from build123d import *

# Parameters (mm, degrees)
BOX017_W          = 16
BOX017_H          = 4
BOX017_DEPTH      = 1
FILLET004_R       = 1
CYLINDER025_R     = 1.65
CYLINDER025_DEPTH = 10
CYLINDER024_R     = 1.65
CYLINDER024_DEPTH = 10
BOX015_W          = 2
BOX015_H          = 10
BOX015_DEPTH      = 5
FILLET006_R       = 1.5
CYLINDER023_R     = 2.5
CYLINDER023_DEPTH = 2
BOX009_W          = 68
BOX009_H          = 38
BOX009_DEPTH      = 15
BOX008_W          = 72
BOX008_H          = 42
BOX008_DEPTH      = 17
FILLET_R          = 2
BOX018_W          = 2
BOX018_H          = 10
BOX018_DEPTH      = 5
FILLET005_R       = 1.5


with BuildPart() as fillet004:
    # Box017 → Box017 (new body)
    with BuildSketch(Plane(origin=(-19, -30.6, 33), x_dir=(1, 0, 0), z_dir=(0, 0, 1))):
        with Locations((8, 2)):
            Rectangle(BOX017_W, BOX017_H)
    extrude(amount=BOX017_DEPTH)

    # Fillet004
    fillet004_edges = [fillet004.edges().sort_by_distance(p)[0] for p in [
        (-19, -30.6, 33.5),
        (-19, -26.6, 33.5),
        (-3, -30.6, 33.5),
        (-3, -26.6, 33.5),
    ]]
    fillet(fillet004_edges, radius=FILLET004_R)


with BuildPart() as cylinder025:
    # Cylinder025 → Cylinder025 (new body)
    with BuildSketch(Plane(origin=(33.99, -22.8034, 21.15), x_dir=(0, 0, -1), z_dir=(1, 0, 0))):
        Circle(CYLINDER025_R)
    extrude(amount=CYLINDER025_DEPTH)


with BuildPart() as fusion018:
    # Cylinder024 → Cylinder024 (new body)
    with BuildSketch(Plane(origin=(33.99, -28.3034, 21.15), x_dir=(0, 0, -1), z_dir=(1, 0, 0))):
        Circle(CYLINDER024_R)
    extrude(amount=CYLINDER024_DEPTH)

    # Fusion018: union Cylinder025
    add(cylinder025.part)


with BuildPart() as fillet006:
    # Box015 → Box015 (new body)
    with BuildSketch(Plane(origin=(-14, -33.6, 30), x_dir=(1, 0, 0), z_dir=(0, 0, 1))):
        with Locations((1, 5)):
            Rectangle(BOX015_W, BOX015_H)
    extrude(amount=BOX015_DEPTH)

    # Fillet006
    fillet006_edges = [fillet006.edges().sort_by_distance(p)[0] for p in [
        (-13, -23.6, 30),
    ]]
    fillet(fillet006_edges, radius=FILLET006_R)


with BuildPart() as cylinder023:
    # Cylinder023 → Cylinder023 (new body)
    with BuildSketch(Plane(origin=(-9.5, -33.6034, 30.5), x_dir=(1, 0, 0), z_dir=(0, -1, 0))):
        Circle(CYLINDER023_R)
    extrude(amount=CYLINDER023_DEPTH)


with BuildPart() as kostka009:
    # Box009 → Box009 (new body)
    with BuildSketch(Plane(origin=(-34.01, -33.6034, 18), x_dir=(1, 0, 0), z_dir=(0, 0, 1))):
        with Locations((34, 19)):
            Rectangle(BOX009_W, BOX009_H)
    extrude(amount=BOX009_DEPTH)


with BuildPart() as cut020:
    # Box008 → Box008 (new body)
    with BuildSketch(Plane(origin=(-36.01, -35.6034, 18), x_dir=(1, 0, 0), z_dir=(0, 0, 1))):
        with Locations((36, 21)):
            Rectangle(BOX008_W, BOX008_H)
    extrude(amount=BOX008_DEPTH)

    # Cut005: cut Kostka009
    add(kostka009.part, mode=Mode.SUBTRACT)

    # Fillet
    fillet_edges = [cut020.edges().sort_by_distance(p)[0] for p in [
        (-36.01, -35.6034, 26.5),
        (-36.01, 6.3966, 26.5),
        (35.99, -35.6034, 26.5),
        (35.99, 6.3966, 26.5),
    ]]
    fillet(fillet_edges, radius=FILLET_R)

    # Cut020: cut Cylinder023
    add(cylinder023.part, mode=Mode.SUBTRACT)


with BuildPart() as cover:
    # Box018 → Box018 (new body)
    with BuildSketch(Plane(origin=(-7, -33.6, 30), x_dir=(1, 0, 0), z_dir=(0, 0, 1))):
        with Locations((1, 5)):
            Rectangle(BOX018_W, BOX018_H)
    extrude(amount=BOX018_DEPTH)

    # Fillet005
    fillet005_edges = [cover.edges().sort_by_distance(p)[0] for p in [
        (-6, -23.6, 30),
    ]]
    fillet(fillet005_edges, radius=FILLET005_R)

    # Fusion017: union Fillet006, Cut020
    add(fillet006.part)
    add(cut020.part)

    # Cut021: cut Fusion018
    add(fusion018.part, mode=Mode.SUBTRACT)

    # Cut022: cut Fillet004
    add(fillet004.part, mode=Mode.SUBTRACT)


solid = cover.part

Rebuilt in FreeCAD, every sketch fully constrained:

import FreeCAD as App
import Part
import Sketcher


def edges_at(feature, points):
    """Names of the edges that pass closest to the given points."""
    edges = feature.Shape.Edges
    near = lambda p: min(range(len(edges)), key=lambda i: edges[i].distToShape(Part.Vertex(*p))[0])
    return sorted({f"Edge{near(p) + 1}" for p in points})

doc = App.newDocument("Part")
body = doc.addObject("PartDesign::Body", "Body")

# Sketch on XY plane
sketch1 = body.newObject("Sketcher::SketchObject", "Sketch")
sketch1.AttachmentSupport = (doc.getObject("XY_Plane"), [""])
sketch1.MapMode = "FlatFace"
sketch1.AttachmentOffset = App.Placement(App.Vector(0, 0, 33), App.Rotation())
sketch1.addGeometry(Part.LineSegment(App.Vector(-19, -26.6, 0), App.Vector(-19, -30.6, 0)), False)
sketch1.addGeometry(Part.LineSegment(App.Vector(-19, -30.6, 0), App.Vector(-3, -30.6, 0)), False)
sketch1.addGeometry(Part.LineSegment(App.Vector(-3, -30.6, 0), App.Vector(-3, -26.6, 0)), False)
sketch1.addGeometry(Part.LineSegment(App.Vector(-3, -26.6, 0), App.Vector(-19, -26.6, 0)), False)
sketch1.addConstraint(Sketcher.Constraint("Coincident", 0, 2, 1, 1))
sketch1.addConstraint(Sketcher.Constraint("Coincident", 1, 2, 2, 1))
sketch1.addConstraint(Sketcher.Constraint("Coincident", 2, 2, 3, 1))
sketch1.addConstraint(Sketcher.Constraint("Coincident", 3, 2, 0, 1))
sketch1.addConstraint(Sketcher.Constraint("Vertical", 0))
sketch1.addConstraint(Sketcher.Constraint("Horizontal", 1))
sketch1.addConstraint(Sketcher.Constraint("Vertical", 2))
sketch1.addConstraint(Sketcher.Constraint("Horizontal", 3))
sketch1.addConstraint(Sketcher.Constraint("DistanceX", 1, 1, 1, 2, 16.0))
sketch1.addConstraint(Sketcher.Constraint("DistanceY", 0, 2, 0, 1, 4.0))
sketch1.addConstraint(Sketcher.Constraint("DistanceX", 0, 2, -1, 1, 19.0))
sketch1.addConstraint(Sketcher.Constraint("DistanceY", 0, 2, -1, 1, 30.6))
pad1 = body.newObject("PartDesign::Pad", "Pad")
pad1.Profile = sketch1
pad1.Length = 1
doc.recompute()

fillet = body.newObject("PartDesign::Fillet", "Fillet")
fillet.Base = (pad1, edges_at(pad1, [
    (-19, -30.6, 33.5),
    (-19, -26.6, 33.5),
    (-3, -30.6, 33.5),
    (-3, -26.6, 33.5),
]))
fillet.Radius = 1
body2 = doc.addObject("PartDesign::Body", "Body001")

# Sketch on YZ plane
sketch2 = body2.newObject("Sketcher::SketchObject", "Sketch001")
sketch2.AttachmentSupport = (doc.getObject("YZ_Plane001"), [""])
sketch2.MapMode = "FlatFace"
sketch2.AttachmentOffset = App.Placement(App.Vector(0, 0, 33.99), App.Rotation())
sketch2.addGeometry(Part.Circle(App.Vector(-22.8, 21.1, 0), App.Vector(0, 0, 1), 1.6), False)
sketch2.addConstraint(Sketcher.Constraint("Diameter", 0, 3.3))
sketch2.addConstraint(Sketcher.Constraint("DistanceY", -1, 1, 0, 3, 21.15))
sketch2.addConstraint(Sketcher.Constraint("DistanceX", 0, 3, -1, 1, 22.8034))
pad2 = body2.newObject("PartDesign::Pad", "Pad001")
pad2.Profile = sketch2
pad2.Length = 10
body3 = doc.addObject("PartDesign::Body", "Body002")
body3.AllowCompound = True

# Sketch on YZ plane
sketch3 = body3.newObject("Sketcher::SketchObject", "Sketch002")
sketch3.AttachmentSupport = (doc.getObject("YZ_Plane002"), [""])
sketch3.MapMode = "FlatFace"
sketch3.AttachmentOffset = App.Placement(App.Vector(0, 0, 33.99), App.Rotation())
sketch3.addGeometry(Part.Circle(App.Vector(-28.3, 21.1, 0), App.Vector(0, 0, 1), 1.6), False)
sketch3.addConstraint(Sketcher.Constraint("Diameter", 0, 3.3))
sketch3.addConstraint(Sketcher.Constraint("DistanceY", -1, 1, 0, 3, 21.15))
sketch3.addConstraint(Sketcher.Constraint("DistanceX", 0, 3, -1, 1, 28.3034))
pad3 = body3.newObject("PartDesign::Pad", "Pad002")
pad3.Profile = sketch3
pad3.Length = 10
doc.recompute()

boolean = body3.newObject("PartDesign::Boolean", "Boolean")
boolean.Type = "Fuse"
boolean.addObjects([body2])
body4 = doc.addObject("PartDesign::Body", "Body003")

# Sketch on XY plane
sketch4 = body4.newObject("Sketcher::SketchObject", "Sketch003")
sketch4.AttachmentSupport = (doc.getObject("XY_Plane003"), [""])
sketch4.MapMode = "FlatFace"
sketch4.AttachmentOffset = App.Placement(App.Vector(0, 0, 30), App.Rotation())
sketch4.addGeometry(Part.LineSegment(App.Vector(-14, -23.6, 0), App.Vector(-14, -33.6, 0)), False)
sketch4.addGeometry(Part.LineSegment(App.Vector(-14, -33.6, 0), App.Vector(-12, -33.6, 0)), False)
sketch4.addGeometry(Part.LineSegment(App.Vector(-12, -33.6, 0), App.Vector(-12, -23.6, 0)), False)
sketch4.addGeometry(Part.LineSegment(App.Vector(-12, -23.6, 0), App.Vector(-14, -23.6, 0)), False)
sketch4.addConstraint(Sketcher.Constraint("Coincident", 0, 2, 1, 1))
sketch4.addConstraint(Sketcher.Constraint("Coincident", 1, 2, 2, 1))
sketch4.addConstraint(Sketcher.Constraint("Coincident", 2, 2, 3, 1))
sketch4.addConstraint(Sketcher.Constraint("Coincident", 3, 2, 0, 1))
sketch4.addConstraint(Sketcher.Constraint("Vertical", 0))
sketch4.addConstraint(Sketcher.Constraint("Horizontal", 1))
sketch4.addConstraint(Sketcher.Constraint("Vertical", 2))
sketch4.addConstraint(Sketcher.Constraint("Horizontal", 3))
sketch4.addConstraint(Sketcher.Constraint("DistanceX", 1, 1, 1, 2, 2.0))
sketch4.addConstraint(Sketcher.Constraint("DistanceY", 0, 2, 0, 1, 10.0))
sketch4.addConstraint(Sketcher.Constraint("DistanceX", 0, 2, -1, 1, 14.0))
sketch4.addConstraint(Sketcher.Constraint("DistanceY", 0, 2, -1, 1, 33.6))
pad4 = body4.newObject("PartDesign::Pad", "Pad003")
pad4.Profile = sketch4
pad4.Length = 5
doc.recompute()

fillet2 = body4.newObject("PartDesign::Fillet", "Fillet001")
fillet2.Base = (pad4, edges_at(pad4, [(-13, -23.6, 30)]))
fillet2.Radius = 1.5
body5 = doc.addObject("PartDesign::Body", "Body004")

# Sketch on XZ plane
sketch5 = body5.newObject("Sketcher::SketchObject", "Sketch004")
sketch5.AttachmentSupport = (doc.getObject("XZ_Plane004"), [""])
sketch5.MapMode = "FlatFace"
sketch5.AttachmentOffset = App.Placement(App.Vector(0, 0, 33.6034), App.Rotation())
sketch5.addGeometry(Part.Circle(App.Vector(-9.5, 30.5, 0), App.Vector(0, 0, 1), 2.5), False)
sketch5.addConstraint(Sketcher.Constraint("Diameter", 0, 5.0))
sketch5.addConstraint(Sketcher.Constraint("DistanceX", 0, 3, -1, 1, 9.5))
sketch5.addConstraint(Sketcher.Constraint("DistanceY", -1, 1, 0, 3, 30.5))
pad5 = body5.newObject("PartDesign::Pad", "Pad004")
pad5.Profile = sketch5
pad5.Length = 2
body6 = doc.addObject("PartDesign::Body", "Body005")

# Sketch on XY plane
sketch6 = body6.newObject("Sketcher::SketchObject", "Sketch005")
sketch6.AttachmentSupport = (doc.getObject("XY_Plane005"), [""])
sketch6.MapMode = "FlatFace"
sketch6.AttachmentOffset = App.Placement(App.Vector(0, 0, 18), App.Rotation())
sketch6.addGeometry(Part.LineSegment(App.Vector(-34, 4, 0), App.Vector(-34, -34, 0)), False)
sketch6.addGeometry(Part.LineSegment(App.Vector(-34, -34, 0), App.Vector(34, -34, 0)), False)
sketch6.addGeometry(Part.LineSegment(App.Vector(34, -34, 0), App.Vector(34, 4, 0)), False)
sketch6.addGeometry(Part.LineSegment(App.Vector(34, 4, 0), App.Vector(-34, 4, 0)), False)
sketch6.addConstraint(Sketcher.Constraint("Coincident", 0, 2, 1, 1))
sketch6.addConstraint(Sketcher.Constraint("Coincident", 1, 2, 2, 1))
sketch6.addConstraint(Sketcher.Constraint("Coincident", 2, 2, 3, 1))
sketch6.addConstraint(Sketcher.Constraint("Coincident", 3, 2, 0, 1))
sketch6.addConstraint(Sketcher.Constraint("Vertical", 0))
sketch6.addConstraint(Sketcher.Constraint("Horizontal", 1))
sketch6.addConstraint(Sketcher.Constraint("Vertical", 2))
sketch6.addConstraint(Sketcher.Constraint("Horizontal", 3))
sketch6.addConstraint(Sketcher.Constraint("DistanceX", 1, 1, 1, 2, 68.0))
sketch6.addConstraint(Sketcher.Constraint("DistanceY", 0, 2, 0, 1, 38.0))
sketch6.addConstraint(Sketcher.Constraint("DistanceX", 0, 2, -1, 1, 34.01))
sketch6.addConstraint(Sketcher.Constraint("DistanceY", 0, 2, -1, 1, 33.6034))
pad6 = body6.newObject("PartDesign::Pad", "Pad005")
pad6.Profile = sketch6
pad6.Length = 15
body7 = doc.addObject("PartDesign::Body", "Body006")

# Sketch on XY plane
sketch7 = body7.newObject("Sketcher::SketchObject", "Sketch006")
sketch7.AttachmentSupport = (doc.getObject("XY_Plane006"), [""])
sketch7.MapMode = "FlatFace"
sketch7.AttachmentOffset = App.Placement(App.Vector(0, 0, 18), App.Rotation())
sketch7.addGeometry(Part.LineSegment(App.Vector(-36, 6, 0), App.Vector(-36, -36, 0)), False)
sketch7.addGeometry(Part.LineSegment(App.Vector(-36, -36, 0), App.Vector(36, -36, 0)), False)
sketch7.addGeometry(Part.LineSegment(App.Vector(36, -36, 0), App.Vector(36, 6, 0)), False)
sketch7.addGeometry(Part.LineSegment(App.Vector(36, 6, 0), App.Vector(-36, 6, 0)), False)
sketch7.addConstraint(Sketcher.Constraint("Coincident", 0, 2, 1, 1))
sketch7.addConstraint(Sketcher.Constraint("Coincident", 1, 2, 2, 1))
sketch7.addConstraint(Sketcher.Constraint("Coincident", 2, 2, 3, 1))
sketch7.addConstraint(Sketcher.Constraint("Coincident", 3, 2, 0, 1))
sketch7.addConstraint(Sketcher.Constraint("Vertical", 0))
sketch7.addConstraint(Sketcher.Constraint("Horizontal", 1))
sketch7.addConstraint(Sketcher.Constraint("Vertical", 2))
sketch7.addConstraint(Sketcher.Constraint("Horizontal", 3))
sketch7.addConstraint(Sketcher.Constraint("DistanceX", 1, 1, 1, 2, 72.0))
sketch7.addConstraint(Sketcher.Constraint("DistanceY", 0, 2, 0, 1, 42.0))
sketch7.addConstraint(Sketcher.Constraint("DistanceX", 0, 2, -1, 1, 36.01))
sketch7.addConstraint(Sketcher.Constraint("DistanceY", 0, 2, -1, 1, 35.6034))
pad7 = body7.newObject("PartDesign::Pad", "Pad006")
pad7.Profile = sketch7
pad7.Length = 17
doc.recompute()

boolean2 = body7.newObject("PartDesign::Boolean", "Boolean001")
boolean2.Type = "Cut"
boolean2.addObjects([body6])
doc.recompute()

fillet3 = body7.newObject("PartDesign::Fillet", "Fillet002")
fillet3.Base = (boolean2, edges_at(boolean2, [
    (-36.01, -35.603, 26.5),
    (-36.01, 6.397, 26.5),
    (35.99, -35.603, 26.5),
    (35.99, 6.397, 26.5),
]))
fillet3.Radius = 2
doc.recompute()

boolean3 = body7.newObject("PartDesign::Boolean", "Boolean002")
boolean3.Type = "Cut"
boolean3.addObjects([body5])
body8 = doc.addObject("PartDesign::Body", "Body007")
body8.AllowCompound = True

# Sketch on XY plane
sketch8 = body8.newObject("Sketcher::SketchObject", "Sketch007")
sketch8.AttachmentSupport = (doc.getObject("XY_Plane007"), [""])
sketch8.MapMode = "FlatFace"
sketch8.AttachmentOffset = App.Placement(App.Vector(0, 0, 30), App.Rotation())
sketch8.addGeometry(Part.LineSegment(App.Vector(-7, -23.6, 0), App.Vector(-7, -33.6, 0)), False)
sketch8.addGeometry(Part.LineSegment(App.Vector(-7, -33.6, 0), App.Vector(-5, -33.6, 0)), False)
sketch8.addGeometry(Part.LineSegment(App.Vector(-5, -33.6, 0), App.Vector(-5, -23.6, 0)), False)
sketch8.addGeometry(Part.LineSegment(App.Vector(-5, -23.6, 0), App.Vector(-7, -23.6, 0)), False)
sketch8.addConstraint(Sketcher.Constraint("Coincident", 0, 2, 1, 1))
sketch8.addConstraint(Sketcher.Constraint("Coincident", 1, 2, 2, 1))
sketch8.addConstraint(Sketcher.Constraint("Coincident", 2, 2, 3, 1))
sketch8.addConstraint(Sketcher.Constraint("Coincident", 3, 2, 0, 1))
sketch8.addConstraint(Sketcher.Constraint("Vertical", 0))
sketch8.addConstraint(Sketcher.Constraint("Horizontal", 1))
sketch8.addConstraint(Sketcher.Constraint("Vertical", 2))
sketch8.addConstraint(Sketcher.Constraint("Horizontal", 3))
sketch8.addConstraint(Sketcher.Constraint("DistanceX", 1, 1, 1, 2, 2.0))
sketch8.addConstraint(Sketcher.Constraint("DistanceY", 0, 2, 0, 1, 10.0))
sketch8.addConstraint(Sketcher.Constraint("DistanceX", 0, 2, -1, 1, 7.0))
sketch8.addConstraint(Sketcher.Constraint("DistanceY", 0, 2, -1, 1, 33.6))
pad8 = body8.newObject("PartDesign::Pad", "Pad007")
pad8.Profile = sketch8
pad8.Length = 5
doc.recompute()

fillet4 = body8.newObject("PartDesign::Fillet", "Fillet003")
fillet4.Base = (pad8, edges_at(pad8, [(-6, -23.6, 30)]))
fillet4.Radius = 1.5
doc.recompute()

boolean4 = body8.newObject("PartDesign::Boolean", "Boolean003")
boolean4.Type = "Fuse"
boolean4.addObjects([body4])
doc.recompute()

boolean5 = body8.newObject("PartDesign::Boolean", "Boolean004")
boolean5.Type = "Fuse"
boolean5.addObjects([body7])
doc.recompute()

boolean6 = body8.newObject("PartDesign::Boolean", "Boolean005")
boolean6.Type = "Cut"
boolean6.addObjects([body3])
doc.recompute()

boolean7 = body8.newObject("PartDesign::Boolean", "Boolean006")
boolean7.Type = "Cut"
boolean7.addObjects([body])

doc.recompute()
